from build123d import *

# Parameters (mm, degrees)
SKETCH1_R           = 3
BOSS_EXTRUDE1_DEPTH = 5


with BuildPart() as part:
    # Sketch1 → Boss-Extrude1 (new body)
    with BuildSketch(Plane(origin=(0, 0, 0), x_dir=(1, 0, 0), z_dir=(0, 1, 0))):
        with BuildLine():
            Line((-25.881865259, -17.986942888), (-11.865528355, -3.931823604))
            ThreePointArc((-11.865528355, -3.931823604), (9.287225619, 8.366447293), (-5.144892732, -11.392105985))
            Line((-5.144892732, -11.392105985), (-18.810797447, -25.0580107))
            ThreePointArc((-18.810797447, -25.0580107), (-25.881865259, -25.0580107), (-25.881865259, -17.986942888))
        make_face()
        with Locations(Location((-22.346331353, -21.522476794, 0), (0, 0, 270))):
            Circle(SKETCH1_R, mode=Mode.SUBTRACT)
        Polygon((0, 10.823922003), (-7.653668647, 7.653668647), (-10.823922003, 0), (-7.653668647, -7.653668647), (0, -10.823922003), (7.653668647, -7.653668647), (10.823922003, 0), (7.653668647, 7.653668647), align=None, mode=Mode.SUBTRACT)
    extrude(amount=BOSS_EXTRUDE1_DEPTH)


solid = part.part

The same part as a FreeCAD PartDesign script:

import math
import FreeCAD as App
import Part
import Sketcher

V = App.Vector
Q = App.Units.Quantity


def add_polygon(sketch, points):
    """Adds a closed chain of lines whose ends are joined by coincident constraints."""
    first, n = sketch.GeometryCount, len(points)
    for a, b in zip(points, points[1:] + points[:1]):
        sketch.addGeometry(Part.LineSegment(App.Vector(*a, 0), App.Vector(*b, 0)), False)
    for i in range(n):
        sketch.addConstraint(Sketcher.Constraint("Coincident", first + i, 2, first + (i + 1) % n, 1))

doc = App.newDocument("Part")
body = doc.addObject("PartDesign::Body", "Body")

sketch1 = body.newObject("Sketcher::SketchObject", "Sketch")
sketch1.AttachmentSupport = (doc.getObject("XZ_Plane"), [""])
sketch1.MapMode = "FlatFace"
sketch1.addGeometry(Part.LineSegment(V(-11.9, 3.9, 0), V(-25.9, 18, 0)), False)
sketch1.addGeometry(Part.ArcOfCircle(Part.Circle(V(-22.3, 21.5, 0), V(0, 0, 1), 5), math.radians(45), math.radians(225)), False)
sketch1.addGeometry(Part.LineSegment(V(-18.8, 25.1, 0), V(-5.1, 11.4, 0)), False)
sketch1.addGeometry(Part.ArcOfCircle(Part.Circle(V(0, 0, 0), V(0, 0, 1), 12.5), math.radians(162), math.radians(474)), False)
sketch1.addGeometry(Part.Circle(V(-22.3, 21.5, 0), V(0, 0, 1), 3), False)
add_polygon(sketch1, [(0, -10.8), (7.7, -7.7), (10.8, 0), (7.7, 7.7), (0, 10.8), (-7.7, 7.7), (-10.8, 0), (-7.7, -7.7)])
sketch1.addConstraint([
    Sketcher.Constraint("Coincident", 0, 2, 1, 2),
    Sketcher.Constraint("Tangent", 1, 1, 2, 1),
    Sketcher.Constraint("Coincident", 2, 2, 3, 2),
    Sketcher.Constraint("Coincident", 3, 1, 0, 1),
    Sketcher.Constraint("Coincident", 3, 3, -1, 1),
    Sketcher.Constraint("Coincident", 4, 3, 1, 3),
    Sketcher.Constraint("Symmetric", 5, 2, 9, 2, -1, 1),
    Sketcher.Constraint("Symmetric", 6, 2, 10, 2, -1, 1),
    Sketcher.Constraint("Symmetric", 7, 2, 11, 2, -1, 1),
    Sketcher.Constraint("Symmetric", 8, 2, 12, 2, -1, 1),
    Sketcher.Constraint("Symmetric", 7, 2, 9, 2, -2),
    Sketcher.Constraint("PointOnObject", 6, 2, -1),
    Sketcher.Constraint("PointOnObject", 8, 2, -2),
    Sketcher.Constraint("Perpendicular", 5, 7),
    Sketcher.Constraint("Equal", 5, 6),
    Sketcher.Constraint("Diameter", 4, 6.0),
    Sketcher.Constraint("Radius", 1, 5.0),
    Sketcher.Constraint("Radius", 3, 12.5),
    Sketcher.Constraint("Angle", 2, Q("-45 deg")),
    Sketcher.Constraint("Angle", 5, Q("22.5 deg")),
    Sketcher.Constraint("DistanceX", 1, 3, 5, 2, 30.0),
    Sketcher.Constraint("DistanceY", 3, 1, 8, 2, 6.892098),
    Sketcher.Constraint("Distance", 5, 8.284271),
    Sketcher.Constraint("DistanceY", -1, 1, 1, 1, 25.058011),
    Sketcher.Constraint("DistanceY", 3, 1, 0, 2, 14.055119),
])
pad1 = body.newObject("PartDesign::Pad", "Pad")
pad1.Profile = sketch1
pad1.Length = 5
pad1.Reversed = True

doc.recompute()
